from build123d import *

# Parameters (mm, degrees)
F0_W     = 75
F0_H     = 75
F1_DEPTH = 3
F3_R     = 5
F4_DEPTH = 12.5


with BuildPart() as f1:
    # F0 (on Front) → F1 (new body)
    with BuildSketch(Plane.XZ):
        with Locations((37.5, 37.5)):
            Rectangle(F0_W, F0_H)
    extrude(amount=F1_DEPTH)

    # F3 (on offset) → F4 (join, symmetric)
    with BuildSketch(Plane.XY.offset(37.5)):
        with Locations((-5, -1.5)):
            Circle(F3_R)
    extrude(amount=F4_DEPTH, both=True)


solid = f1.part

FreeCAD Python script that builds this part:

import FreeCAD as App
import Part
import Sketcher
Q = App.Units.Quantity

doc = App.newDocument("Part")
body = doc.addObject("PartDesign::Body", "Body")
body.AllowCompound = True

# Sketch on XZ plane
sketch1 = doc.addObject("Sketcher::SketchObject", "Sketch")
body.addObject(sketch1)
sketch1.AttachmentSupport = (doc.XZ_Plane, [""])
sketch1.MapMode = "FlatFace"
sketch1.addGeometry([
    Part.LineSegment(App.Vector(0, 75, 0), App.Vector(0, 0, 0)),
    Part.LineSegment(App.Vector(0, 0, 0), App.Vector(75, 0, 0)),
    Part.LineSegment(App.Vector(75, 0, 0), App.Vector(75, 75, 0)),
    Part.LineSegment(App.Vector(75, 75, 0), App.Vector(0, 75, 0)),
], False)
sketch1.addConstraint([
    Sketcher.Constraint("Coincident", 0, 2, 1, 1),
    Sketcher.Constraint("Coincident", 1, 2, 2, 1),
    Sketcher.Constraint("Coincident", 2, 2, 3, 1),
    Sketcher.Constraint("Coincident", 3, 2, 0, 1),
    Sketcher.Constraint("Vertical", 0),
    Sketcher.Constraint("Horizontal", 1),
    Sketcher.Constraint("Vertical", 2),
    Sketcher.Constraint("Horizontal", 3),
    Sketcher.Constraint("Coincident", 0, 2, -1, 1),
    Sketcher.Constraint("Equal", 3, 0),
    Sketcher.Constraint("DistanceX", 1, 1, 1, 2, Q("75 mm")),
])
pad1 = doc.addObject("PartDesign::Pad", "Pad")
body.addObject(pad1)
pad1.Profile = sketch1
pad1.Length = 3

# Sketch on XY plane
sketch2 = doc.addObject("Sketcher::SketchObject", "Sketch001")
body.addObject(sketch2)
sketch2.AttachmentSupport = (doc.XY_Plane, [""])
sketch2.MapMode = "FlatFace"
sketch2.AttachmentOffset = App.Placement(App.Vector(0, 0, 37.5), App.Rotation())
sketch2.addGeometry(Part.Circle(App.Vector(-5, -2, 0), App.Vector(0, 0, 1), 5), False)
sketch2.addConstraint([
    Sketcher.Constraint("Diameter", 0, Q("10 mm")),
    Sketcher.Constraint("DistanceX", 0, 3, -1, 1, Q("5 mm")),
    Sketcher.Constraint("DistanceY", 0, 3, -1, 1, Q("1.5 mm")),
])
pad2 = doc.addObject("PartDesign::Pad", "Pad001")
body.addObject(pad2)
pad2.Profile = sketch2
pad2.Length = 25
pad2.Midplane = True

doc.recompute()
